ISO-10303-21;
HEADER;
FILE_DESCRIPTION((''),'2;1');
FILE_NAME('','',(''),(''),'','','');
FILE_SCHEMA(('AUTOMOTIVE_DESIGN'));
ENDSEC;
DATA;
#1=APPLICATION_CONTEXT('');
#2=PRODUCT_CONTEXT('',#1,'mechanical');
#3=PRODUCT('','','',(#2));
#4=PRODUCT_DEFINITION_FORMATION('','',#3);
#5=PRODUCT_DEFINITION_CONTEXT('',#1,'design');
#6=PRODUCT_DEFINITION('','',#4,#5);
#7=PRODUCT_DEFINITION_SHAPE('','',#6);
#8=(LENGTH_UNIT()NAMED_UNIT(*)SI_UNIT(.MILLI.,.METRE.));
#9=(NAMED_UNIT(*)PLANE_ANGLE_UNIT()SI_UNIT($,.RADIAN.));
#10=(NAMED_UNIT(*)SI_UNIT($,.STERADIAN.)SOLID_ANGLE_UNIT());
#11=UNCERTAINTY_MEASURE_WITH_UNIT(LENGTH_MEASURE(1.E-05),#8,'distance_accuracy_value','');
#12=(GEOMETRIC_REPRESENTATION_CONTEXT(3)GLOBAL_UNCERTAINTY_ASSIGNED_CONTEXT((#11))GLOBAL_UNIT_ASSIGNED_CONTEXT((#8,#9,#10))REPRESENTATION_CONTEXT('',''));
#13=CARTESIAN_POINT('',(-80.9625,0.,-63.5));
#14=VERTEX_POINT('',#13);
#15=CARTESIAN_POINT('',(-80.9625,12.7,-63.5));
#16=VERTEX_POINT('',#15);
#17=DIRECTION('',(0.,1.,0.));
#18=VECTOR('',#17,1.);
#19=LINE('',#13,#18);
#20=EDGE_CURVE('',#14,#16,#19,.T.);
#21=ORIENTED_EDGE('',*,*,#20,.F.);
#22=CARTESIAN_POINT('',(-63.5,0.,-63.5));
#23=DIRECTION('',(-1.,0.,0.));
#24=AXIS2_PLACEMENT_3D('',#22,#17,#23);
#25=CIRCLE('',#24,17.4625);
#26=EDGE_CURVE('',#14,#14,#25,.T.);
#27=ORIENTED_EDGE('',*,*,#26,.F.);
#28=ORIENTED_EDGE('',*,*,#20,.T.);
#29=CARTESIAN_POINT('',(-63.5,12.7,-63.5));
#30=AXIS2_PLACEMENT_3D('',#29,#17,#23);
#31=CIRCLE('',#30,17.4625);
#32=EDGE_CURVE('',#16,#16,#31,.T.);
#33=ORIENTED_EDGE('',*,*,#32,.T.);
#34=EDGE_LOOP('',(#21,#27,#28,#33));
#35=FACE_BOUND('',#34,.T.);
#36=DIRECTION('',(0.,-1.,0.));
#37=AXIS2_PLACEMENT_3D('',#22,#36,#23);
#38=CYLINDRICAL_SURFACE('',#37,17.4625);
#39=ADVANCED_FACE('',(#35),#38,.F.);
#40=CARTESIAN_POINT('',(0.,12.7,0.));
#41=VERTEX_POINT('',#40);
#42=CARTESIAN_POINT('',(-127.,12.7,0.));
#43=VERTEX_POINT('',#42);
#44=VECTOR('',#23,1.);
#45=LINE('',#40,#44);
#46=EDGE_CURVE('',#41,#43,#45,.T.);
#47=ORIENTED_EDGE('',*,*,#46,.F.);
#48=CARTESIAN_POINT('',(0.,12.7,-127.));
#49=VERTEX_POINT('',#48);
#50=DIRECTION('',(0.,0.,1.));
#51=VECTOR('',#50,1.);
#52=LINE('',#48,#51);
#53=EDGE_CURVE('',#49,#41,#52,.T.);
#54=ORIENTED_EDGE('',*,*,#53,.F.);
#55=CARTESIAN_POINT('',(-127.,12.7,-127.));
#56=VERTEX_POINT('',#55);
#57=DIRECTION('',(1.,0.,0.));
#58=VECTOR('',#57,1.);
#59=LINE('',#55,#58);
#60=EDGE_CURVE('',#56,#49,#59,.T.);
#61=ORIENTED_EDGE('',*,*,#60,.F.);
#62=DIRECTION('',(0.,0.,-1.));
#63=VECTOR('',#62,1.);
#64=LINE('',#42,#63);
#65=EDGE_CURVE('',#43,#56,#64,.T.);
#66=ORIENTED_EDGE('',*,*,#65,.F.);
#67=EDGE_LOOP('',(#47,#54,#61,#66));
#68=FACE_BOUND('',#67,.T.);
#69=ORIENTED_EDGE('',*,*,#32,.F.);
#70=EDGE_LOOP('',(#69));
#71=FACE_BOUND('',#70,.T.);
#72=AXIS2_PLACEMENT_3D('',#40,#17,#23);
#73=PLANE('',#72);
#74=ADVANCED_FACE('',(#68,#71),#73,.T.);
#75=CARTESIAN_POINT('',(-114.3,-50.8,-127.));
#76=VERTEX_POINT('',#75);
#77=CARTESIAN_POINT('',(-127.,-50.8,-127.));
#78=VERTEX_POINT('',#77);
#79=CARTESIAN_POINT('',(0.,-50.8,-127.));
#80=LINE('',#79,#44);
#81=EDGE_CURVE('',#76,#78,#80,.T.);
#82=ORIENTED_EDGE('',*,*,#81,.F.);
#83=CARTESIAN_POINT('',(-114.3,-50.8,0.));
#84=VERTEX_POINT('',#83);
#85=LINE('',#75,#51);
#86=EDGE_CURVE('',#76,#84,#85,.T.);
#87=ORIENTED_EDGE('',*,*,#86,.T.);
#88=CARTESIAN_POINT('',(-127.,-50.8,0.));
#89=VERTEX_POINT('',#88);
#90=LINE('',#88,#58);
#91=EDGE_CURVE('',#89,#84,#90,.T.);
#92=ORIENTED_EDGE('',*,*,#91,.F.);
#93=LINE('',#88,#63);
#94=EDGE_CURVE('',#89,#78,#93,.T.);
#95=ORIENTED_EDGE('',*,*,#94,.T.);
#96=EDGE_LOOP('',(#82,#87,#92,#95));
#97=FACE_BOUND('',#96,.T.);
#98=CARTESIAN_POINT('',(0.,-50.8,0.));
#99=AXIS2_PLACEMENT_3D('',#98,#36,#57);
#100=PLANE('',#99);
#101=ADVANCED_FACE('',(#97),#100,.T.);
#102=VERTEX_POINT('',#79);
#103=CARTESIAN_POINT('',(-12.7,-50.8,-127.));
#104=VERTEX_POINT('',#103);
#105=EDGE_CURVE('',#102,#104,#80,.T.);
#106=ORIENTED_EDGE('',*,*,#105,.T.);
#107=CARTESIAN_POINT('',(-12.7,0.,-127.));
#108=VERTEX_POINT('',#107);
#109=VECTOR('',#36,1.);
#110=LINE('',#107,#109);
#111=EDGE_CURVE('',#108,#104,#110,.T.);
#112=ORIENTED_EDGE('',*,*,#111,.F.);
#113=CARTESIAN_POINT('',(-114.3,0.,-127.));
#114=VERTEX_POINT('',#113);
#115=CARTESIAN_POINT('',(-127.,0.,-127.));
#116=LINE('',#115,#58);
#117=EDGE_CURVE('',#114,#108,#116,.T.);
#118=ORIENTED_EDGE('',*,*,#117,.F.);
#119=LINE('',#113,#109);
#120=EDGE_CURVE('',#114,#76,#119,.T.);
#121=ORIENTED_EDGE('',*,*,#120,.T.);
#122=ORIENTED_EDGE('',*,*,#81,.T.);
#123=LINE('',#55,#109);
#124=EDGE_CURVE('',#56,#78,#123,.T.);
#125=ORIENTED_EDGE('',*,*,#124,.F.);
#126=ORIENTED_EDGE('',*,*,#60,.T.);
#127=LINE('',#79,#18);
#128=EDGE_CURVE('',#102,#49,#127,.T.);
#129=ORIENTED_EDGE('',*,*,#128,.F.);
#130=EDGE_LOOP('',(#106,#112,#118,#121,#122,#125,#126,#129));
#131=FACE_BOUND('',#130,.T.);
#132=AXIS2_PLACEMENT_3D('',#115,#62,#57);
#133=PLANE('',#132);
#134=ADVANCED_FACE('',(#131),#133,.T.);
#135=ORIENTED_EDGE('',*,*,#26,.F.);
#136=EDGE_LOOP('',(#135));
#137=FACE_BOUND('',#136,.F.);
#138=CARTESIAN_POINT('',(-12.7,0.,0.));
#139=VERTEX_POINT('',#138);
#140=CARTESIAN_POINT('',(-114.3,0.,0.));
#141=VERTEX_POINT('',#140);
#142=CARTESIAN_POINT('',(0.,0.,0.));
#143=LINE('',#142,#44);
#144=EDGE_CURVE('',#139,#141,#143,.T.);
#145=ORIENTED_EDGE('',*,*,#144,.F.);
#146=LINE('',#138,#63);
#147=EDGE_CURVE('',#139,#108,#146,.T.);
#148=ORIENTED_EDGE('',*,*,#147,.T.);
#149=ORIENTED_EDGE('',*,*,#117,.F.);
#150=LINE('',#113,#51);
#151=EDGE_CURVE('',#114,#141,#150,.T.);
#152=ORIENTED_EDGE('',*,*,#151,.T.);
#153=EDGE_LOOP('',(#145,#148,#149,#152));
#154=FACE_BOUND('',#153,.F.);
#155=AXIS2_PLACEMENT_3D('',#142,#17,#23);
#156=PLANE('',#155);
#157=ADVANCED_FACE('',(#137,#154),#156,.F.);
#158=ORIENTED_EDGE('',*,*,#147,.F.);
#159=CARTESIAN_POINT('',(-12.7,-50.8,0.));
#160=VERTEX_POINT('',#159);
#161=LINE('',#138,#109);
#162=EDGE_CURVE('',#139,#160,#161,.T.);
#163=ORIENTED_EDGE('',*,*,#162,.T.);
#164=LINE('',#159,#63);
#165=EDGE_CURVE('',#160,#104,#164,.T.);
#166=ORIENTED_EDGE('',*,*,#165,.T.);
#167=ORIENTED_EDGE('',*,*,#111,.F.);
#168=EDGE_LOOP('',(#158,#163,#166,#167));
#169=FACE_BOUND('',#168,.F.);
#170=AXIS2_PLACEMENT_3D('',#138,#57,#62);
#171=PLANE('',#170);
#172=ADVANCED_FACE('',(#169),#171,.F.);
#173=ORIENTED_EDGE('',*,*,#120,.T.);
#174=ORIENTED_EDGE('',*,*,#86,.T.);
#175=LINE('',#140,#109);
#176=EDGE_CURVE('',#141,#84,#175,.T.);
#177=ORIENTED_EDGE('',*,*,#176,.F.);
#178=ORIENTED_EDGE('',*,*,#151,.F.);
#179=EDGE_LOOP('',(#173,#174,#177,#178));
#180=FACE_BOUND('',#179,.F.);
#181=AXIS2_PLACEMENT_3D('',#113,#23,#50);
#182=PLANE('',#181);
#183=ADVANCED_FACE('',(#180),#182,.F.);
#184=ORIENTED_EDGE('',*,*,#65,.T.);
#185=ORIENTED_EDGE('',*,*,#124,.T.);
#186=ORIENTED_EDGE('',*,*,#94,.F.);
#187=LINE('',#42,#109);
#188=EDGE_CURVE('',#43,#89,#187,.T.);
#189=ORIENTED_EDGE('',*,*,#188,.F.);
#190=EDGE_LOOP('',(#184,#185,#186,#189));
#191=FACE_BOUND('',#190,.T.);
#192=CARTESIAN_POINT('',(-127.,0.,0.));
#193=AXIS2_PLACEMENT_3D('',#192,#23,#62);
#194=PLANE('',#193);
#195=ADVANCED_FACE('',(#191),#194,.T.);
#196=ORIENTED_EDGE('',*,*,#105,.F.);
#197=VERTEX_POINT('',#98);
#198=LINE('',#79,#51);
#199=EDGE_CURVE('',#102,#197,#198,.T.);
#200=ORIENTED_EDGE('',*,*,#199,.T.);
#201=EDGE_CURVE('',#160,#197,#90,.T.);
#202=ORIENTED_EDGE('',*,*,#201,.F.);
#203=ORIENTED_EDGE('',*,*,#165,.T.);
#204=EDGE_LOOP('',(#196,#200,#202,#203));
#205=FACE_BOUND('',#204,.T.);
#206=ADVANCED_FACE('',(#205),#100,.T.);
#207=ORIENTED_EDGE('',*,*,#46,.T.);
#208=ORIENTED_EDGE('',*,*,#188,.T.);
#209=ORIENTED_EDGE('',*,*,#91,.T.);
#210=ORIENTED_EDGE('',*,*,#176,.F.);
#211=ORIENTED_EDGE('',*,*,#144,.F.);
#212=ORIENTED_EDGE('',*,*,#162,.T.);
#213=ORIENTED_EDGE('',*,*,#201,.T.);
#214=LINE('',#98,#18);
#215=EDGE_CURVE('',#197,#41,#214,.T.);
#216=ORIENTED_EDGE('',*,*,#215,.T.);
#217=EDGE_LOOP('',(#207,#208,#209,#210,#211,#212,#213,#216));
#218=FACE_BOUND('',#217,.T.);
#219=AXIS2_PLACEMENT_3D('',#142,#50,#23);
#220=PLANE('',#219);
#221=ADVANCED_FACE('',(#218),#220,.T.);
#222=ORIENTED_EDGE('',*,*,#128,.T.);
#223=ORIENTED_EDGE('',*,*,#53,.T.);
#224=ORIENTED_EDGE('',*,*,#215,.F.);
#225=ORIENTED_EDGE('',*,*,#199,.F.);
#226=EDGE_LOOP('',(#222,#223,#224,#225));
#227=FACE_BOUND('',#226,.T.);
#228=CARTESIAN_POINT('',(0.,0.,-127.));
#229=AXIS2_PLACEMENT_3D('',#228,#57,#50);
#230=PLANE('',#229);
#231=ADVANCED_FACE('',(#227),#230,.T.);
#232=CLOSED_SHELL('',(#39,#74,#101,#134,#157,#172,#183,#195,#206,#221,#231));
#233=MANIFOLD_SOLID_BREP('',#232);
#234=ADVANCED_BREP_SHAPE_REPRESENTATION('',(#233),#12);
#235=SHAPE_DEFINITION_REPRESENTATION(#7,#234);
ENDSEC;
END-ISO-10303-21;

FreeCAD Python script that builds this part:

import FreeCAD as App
import Part
import Sketcher
from FreeCAD import Vector
Q = App.Units.Quantity


def add_polygon(sketch, points):
    """Adds a closed chain of lines whose ends are joined by coincident constraints."""
    first, n = sketch.GeometryCount, len(points)
    for a, b in zip(points, points[1:] + points[:1]):
        sketch.addGeometry(Part.LineSegment(App.Vector(*a, 0), App.Vector(*b, 0)), False)
    for i in range(n):
        sketch.addConstraint(Sketcher.Constraint("Coincident", first + i, 2, first + (i + 1) % n, 1))

doc = App.newDocument("Part")
body = doc.addObject("PartDesign::Body", "Body")

# Sketch on XZ plane
sketch1 = body.newObject("Sketcher::SketchObject", "Sketch")
sketch1.AttachmentSupport = (doc.getObject("XZ_Plane"), [""])
sketch1.MapMode = "FlatFace"
add_polygon(sketch1, [(-127, 0), (0, 0), (0, -127), (-127, -127)])  # lines 0-3
sketch1.addGeometry(Part.Circle(Vector(-64, -64, 0), Vector(0, 0, 1), 17), False)  # 4
sketch1.addConstraint(Sketcher.Constraint("Horizontal", 0))
sketch1.addConstraint(Sketcher.Constraint("Vertical", 1))
sketch1.addConstraint(Sketcher.Constraint("Horizontal", 2))
sketch1.addConstraint(Sketcher.Constraint("Vertical", 3))
sketch1.addConstraint(Sketcher.Constraint("Coincident", 0, 2, -1, 1))
sketch1.addConstraint(Sketcher.Constraint("Equal", 2, 1))
sketch1.addConstraint(Sketcher.Constraint("DistanceX", 0, 1, 0, 2, Q("5 in")))
sketch1.addConstraint(Sketcher.Constraint("Diameter", 4, Q("1.375 in")))
sketch1.addConstraint(Sketcher.Constraint("DistanceX", 4, 3, -1, 1, Q("2.5 in")))
sketch1.addConstraint(Sketcher.Constraint("DistanceY", 4, 3, -1, 1, Q("2.5 in")))
pad1 = body.newObject("PartDesign::Pad", "Pad")
pad1.Profile = sketch1
pad1.Length = Q("0.5 in")
pad1.Reversed = True

# Sketch on XZ plane
sketch2 = body.newObject("Sketcher::SketchObject", "Sketch001")
sketch2.AttachmentSupport = (doc.getObject("XZ_Plane"), [""])
sketch2.MapMode = "FlatFace"
add_polygon(sketch2, [(-13, -127), (0, -127), (0, 0), (-13, 0)])  # lines 0-3
add_polygon(sketch2, [(-127, -127), (-114, -127), (-114, 0), (-127, 0)])  # lines 4-7
sketch2.addConstraint(Sketcher.Constraint("Horizontal", 0))
sketch2.addConstraint(Sketcher.Constraint("Vertical", 1))
sketch2.addConstraint(Sketcher.Constraint("Horizontal", 2))
sketch2.addConstraint(Sketcher.Constraint("Vertical", 3))
sketch2.addConstraint(Sketcher.Constraint("Horizontal", 4))
sketch2.addConstraint(Sketcher.Constraint("Vertical", 5))
sketch2.addConstraint(Sketcher.Constraint("Horizontal", 6))
sketch2.addConstraint(Sketcher.Constraint("Vertical", 7))
sketch2.addConstraint(Sketcher.Constraint("Coincident", 1, 2, -1, 1))
sketch2.addConstraint(Sketcher.Constraint("PointOnObject", 5, 2, -1))
sketch2.addConstraint(Sketcher.Constraint("Horizontal", 3, 2, 4, 2))
sketch2.addConstraint(Sketcher.Constraint("Equal", 2, 4))
sketch2.addConstraint(Sketcher.Constraint("DistanceX", 0, 1, 0, 2, Q("0.5 in")))
sketch2.addConstraint(Sketcher.Constraint("DistanceY", 1, 1, 1, 2, Q("5 in")))
sketch2.addConstraint(Sketcher.Constraint("DistanceX", 6, 2, -1, 1, Q("5 in")))
pad2 = body.newObject("PartDesign::Pad", "Pad001")
pad2.Profile = sketch2
pad2.Length = Q("2 in")

doc.recompute()
